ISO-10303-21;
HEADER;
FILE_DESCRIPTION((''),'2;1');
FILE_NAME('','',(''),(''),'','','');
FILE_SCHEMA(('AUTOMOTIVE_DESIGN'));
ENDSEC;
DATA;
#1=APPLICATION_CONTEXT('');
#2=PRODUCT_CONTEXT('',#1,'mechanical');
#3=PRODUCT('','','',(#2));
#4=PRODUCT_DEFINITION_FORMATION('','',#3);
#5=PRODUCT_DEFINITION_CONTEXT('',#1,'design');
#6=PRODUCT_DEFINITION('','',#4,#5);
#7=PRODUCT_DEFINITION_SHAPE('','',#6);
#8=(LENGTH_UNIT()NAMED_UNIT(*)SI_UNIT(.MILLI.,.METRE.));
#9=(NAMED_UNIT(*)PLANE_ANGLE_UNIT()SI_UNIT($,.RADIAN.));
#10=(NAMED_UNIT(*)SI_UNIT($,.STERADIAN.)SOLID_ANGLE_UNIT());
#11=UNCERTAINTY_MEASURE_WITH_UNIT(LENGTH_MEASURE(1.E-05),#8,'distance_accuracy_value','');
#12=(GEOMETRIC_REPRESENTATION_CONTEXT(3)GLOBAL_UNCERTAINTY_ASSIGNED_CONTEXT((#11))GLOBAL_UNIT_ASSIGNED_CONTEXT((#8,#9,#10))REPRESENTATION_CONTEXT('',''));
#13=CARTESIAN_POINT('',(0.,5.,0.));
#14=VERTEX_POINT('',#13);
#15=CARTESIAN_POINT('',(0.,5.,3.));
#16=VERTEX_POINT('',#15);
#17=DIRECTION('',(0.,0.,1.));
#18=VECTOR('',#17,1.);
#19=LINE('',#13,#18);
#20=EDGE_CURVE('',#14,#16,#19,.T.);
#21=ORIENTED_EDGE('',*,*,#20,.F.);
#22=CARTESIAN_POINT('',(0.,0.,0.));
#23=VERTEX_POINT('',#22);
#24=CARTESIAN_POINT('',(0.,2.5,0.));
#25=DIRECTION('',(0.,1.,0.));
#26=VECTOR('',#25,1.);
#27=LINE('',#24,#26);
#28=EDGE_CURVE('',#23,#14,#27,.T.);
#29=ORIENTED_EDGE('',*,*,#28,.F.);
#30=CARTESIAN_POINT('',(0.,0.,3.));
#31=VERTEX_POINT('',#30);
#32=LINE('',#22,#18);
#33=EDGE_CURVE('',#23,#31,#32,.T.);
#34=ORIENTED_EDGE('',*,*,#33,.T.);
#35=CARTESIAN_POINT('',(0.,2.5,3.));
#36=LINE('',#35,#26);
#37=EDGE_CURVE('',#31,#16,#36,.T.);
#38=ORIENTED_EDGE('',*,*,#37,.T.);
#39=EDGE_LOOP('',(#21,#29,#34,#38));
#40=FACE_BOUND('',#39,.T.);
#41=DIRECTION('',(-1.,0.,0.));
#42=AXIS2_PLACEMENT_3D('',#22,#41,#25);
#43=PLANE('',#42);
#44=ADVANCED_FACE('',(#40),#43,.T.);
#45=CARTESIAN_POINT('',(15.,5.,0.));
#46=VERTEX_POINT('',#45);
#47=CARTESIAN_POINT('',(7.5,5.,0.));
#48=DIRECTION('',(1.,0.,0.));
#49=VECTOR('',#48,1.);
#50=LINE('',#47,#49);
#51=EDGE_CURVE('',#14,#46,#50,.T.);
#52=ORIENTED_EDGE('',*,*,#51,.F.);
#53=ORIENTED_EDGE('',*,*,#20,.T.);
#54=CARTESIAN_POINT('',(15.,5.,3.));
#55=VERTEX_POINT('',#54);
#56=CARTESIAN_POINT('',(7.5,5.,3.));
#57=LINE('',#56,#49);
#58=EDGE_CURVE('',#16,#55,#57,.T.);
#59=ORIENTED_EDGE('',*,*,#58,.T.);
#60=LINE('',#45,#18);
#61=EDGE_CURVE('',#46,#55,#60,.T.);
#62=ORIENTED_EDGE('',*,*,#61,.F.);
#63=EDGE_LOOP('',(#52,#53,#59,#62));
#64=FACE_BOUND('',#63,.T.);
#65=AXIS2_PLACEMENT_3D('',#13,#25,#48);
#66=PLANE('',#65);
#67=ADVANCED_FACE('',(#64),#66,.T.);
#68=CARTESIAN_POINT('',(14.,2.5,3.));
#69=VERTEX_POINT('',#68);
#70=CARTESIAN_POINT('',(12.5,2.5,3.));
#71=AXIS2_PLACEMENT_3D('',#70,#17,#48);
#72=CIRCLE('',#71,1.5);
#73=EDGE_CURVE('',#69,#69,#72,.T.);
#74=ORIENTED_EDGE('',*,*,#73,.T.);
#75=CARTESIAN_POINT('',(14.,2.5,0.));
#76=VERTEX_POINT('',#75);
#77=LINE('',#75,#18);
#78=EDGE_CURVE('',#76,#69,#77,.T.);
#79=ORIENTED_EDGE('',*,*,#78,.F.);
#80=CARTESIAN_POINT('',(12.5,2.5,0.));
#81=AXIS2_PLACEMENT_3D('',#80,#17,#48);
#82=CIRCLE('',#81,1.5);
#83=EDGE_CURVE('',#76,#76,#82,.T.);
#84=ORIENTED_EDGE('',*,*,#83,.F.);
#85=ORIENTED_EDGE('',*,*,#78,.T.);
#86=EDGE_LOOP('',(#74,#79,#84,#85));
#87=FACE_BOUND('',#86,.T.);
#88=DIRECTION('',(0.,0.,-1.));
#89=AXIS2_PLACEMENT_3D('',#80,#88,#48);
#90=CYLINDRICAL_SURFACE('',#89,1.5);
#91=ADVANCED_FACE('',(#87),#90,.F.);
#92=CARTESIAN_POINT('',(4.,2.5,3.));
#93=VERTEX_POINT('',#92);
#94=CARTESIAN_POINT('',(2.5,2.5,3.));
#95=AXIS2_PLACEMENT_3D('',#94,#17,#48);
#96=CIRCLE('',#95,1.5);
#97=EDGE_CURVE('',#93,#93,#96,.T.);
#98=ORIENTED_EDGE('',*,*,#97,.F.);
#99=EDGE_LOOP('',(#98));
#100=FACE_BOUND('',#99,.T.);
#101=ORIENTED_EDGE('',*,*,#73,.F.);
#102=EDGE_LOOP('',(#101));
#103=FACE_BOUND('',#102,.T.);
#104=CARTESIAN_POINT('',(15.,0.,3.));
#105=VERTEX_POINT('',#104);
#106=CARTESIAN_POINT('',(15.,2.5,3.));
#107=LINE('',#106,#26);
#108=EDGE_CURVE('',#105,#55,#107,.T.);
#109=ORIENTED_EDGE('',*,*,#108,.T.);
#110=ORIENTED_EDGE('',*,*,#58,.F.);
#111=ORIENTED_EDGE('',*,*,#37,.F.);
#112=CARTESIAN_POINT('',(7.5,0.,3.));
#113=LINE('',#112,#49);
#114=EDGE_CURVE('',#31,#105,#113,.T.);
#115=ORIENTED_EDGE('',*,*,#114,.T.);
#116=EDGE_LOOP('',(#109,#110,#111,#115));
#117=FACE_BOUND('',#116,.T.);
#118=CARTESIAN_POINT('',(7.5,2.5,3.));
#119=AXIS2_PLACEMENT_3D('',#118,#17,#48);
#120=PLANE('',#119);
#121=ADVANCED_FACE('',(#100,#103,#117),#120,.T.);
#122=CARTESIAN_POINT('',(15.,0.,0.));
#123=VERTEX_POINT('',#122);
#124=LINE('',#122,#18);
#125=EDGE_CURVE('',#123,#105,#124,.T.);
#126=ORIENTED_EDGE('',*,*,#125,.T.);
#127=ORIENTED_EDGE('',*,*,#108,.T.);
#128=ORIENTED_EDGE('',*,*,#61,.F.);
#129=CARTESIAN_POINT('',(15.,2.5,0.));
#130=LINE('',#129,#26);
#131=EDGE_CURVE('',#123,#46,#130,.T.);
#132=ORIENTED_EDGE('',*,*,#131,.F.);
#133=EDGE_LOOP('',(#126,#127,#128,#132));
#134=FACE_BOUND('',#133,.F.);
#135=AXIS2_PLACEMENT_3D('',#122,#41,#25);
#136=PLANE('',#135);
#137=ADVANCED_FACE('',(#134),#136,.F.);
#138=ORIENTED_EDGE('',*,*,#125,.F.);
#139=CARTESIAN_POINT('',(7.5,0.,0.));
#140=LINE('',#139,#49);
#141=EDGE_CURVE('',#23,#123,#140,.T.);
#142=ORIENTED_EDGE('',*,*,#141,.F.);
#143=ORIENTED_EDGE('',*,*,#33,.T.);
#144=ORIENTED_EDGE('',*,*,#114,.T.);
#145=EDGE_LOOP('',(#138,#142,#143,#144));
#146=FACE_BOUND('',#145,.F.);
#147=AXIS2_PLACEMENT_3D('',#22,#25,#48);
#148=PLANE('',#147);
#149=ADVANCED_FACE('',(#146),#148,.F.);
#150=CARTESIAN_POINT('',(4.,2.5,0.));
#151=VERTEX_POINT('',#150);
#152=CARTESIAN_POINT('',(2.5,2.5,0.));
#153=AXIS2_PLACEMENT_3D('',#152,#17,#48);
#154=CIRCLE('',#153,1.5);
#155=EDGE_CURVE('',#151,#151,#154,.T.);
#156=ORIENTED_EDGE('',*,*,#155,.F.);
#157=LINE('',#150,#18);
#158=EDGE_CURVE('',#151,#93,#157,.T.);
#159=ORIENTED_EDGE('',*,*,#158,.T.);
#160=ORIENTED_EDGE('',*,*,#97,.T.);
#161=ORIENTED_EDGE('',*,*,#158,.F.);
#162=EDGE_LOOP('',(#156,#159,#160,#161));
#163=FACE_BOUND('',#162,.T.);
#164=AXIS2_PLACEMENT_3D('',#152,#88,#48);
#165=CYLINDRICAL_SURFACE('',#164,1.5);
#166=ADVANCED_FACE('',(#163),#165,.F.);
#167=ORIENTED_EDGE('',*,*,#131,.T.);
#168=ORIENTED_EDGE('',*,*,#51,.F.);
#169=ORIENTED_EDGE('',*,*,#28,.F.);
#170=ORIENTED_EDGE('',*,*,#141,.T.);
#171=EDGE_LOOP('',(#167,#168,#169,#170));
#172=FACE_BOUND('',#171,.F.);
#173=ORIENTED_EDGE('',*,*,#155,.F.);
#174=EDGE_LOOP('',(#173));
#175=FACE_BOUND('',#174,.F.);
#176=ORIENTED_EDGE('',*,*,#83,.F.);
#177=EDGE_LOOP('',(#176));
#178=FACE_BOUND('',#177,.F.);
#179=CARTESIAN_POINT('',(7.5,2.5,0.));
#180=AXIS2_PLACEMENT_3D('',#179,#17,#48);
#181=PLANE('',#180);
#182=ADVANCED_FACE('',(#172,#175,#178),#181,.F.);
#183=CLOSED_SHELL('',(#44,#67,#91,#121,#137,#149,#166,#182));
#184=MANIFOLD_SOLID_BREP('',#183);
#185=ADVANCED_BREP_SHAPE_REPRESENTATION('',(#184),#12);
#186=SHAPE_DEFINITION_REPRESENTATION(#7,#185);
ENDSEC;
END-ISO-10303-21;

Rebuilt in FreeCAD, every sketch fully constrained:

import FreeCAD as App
import Part
import Sketcher
from FreeCAD import Vector


def add_polygon(sketch, points):
    """Adds a closed chain of lines whose ends are joined by coincident constraints."""
    first, n = sketch.GeometryCount, len(points)
    for a, b in zip(points, points[1:] + points[:1]):
        sketch.addGeometry(Part.LineSegment(App.Vector(*a, 0), App.Vector(*b, 0)), False)
    for i in range(n):
        sketch.addConstraint(Sketcher.Constraint("Coincident", first + i, 2, first + (i + 1) % n, 1))

doc = App.newDocument("Part")
body = doc.addObject("PartDesign::Body", "Body")

# Sketch on XY plane
sketch1 = body.newObject("Sketcher::SketchObject", "Sketch")
sketch1.AttachmentSupport = (doc.getObject("XY_Plane"), [""])
sketch1.MapMode = "FlatFace"
add_polygon(sketch1, [(0, 5), (0, 0), (15, 0), (15, 5)])  # lines 0-3
sketch1.addGeometry(Part.Circle(Vector(2.5, 2.5, 0), Vector(0, 0, 1), 1.5), False)  # 4
sketch1.addGeometry(Part.Circle(Vector(12.5, 2.5, 0), Vector(0, 0, 1), 1.5), False)  # 5
sketch1.addConstraint(Sketcher.Constraint("Vertical", 0))
sketch1.addConstraint(Sketcher.Constraint("Horizontal", 1))
sketch1.addConstraint(Sketcher.Constraint("Vertical", 2))
sketch1.addConstraint(Sketcher.Constraint("Horizontal", 3))
sketch1.addConstraint(Sketcher.Constraint("Coincident", 0, 2, -1, 1))
sketch1.addConstraint(Sketcher.Constraint("Equal", 4, 5))
sketch1.addConstraint(Sketcher.Constraint("Horizontal", 4, 3, 5, 3))
sketch1.addConstraint(Sketcher.Constraint("Diameter", 4, 3.0))
sketch1.addConstraint(Sketcher.Constraint("DistanceX", 1, 1, 1, 2, 15.0))
sketch1.addConstraint(Sketcher.Constraint("DistanceY", 0, 2, 0, 1, 5.0))
sketch1.addConstraint(Sketcher.Constraint("DistanceX", 4, 3, 5, 3, 10.0))
sketch1.addConstraint(Sketcher.Constraint("DistanceX", -1, 1, 4, 3, 2.5))
sketch1.addConstraint(Sketcher.Constraint("DistanceY", -1, 1, 4, 3, 2.5))
pad1 = body.newObject("PartDesign::Pad", "Pad")
pad1.Profile = sketch1
pad1.Length = 3

doc.recompute()
